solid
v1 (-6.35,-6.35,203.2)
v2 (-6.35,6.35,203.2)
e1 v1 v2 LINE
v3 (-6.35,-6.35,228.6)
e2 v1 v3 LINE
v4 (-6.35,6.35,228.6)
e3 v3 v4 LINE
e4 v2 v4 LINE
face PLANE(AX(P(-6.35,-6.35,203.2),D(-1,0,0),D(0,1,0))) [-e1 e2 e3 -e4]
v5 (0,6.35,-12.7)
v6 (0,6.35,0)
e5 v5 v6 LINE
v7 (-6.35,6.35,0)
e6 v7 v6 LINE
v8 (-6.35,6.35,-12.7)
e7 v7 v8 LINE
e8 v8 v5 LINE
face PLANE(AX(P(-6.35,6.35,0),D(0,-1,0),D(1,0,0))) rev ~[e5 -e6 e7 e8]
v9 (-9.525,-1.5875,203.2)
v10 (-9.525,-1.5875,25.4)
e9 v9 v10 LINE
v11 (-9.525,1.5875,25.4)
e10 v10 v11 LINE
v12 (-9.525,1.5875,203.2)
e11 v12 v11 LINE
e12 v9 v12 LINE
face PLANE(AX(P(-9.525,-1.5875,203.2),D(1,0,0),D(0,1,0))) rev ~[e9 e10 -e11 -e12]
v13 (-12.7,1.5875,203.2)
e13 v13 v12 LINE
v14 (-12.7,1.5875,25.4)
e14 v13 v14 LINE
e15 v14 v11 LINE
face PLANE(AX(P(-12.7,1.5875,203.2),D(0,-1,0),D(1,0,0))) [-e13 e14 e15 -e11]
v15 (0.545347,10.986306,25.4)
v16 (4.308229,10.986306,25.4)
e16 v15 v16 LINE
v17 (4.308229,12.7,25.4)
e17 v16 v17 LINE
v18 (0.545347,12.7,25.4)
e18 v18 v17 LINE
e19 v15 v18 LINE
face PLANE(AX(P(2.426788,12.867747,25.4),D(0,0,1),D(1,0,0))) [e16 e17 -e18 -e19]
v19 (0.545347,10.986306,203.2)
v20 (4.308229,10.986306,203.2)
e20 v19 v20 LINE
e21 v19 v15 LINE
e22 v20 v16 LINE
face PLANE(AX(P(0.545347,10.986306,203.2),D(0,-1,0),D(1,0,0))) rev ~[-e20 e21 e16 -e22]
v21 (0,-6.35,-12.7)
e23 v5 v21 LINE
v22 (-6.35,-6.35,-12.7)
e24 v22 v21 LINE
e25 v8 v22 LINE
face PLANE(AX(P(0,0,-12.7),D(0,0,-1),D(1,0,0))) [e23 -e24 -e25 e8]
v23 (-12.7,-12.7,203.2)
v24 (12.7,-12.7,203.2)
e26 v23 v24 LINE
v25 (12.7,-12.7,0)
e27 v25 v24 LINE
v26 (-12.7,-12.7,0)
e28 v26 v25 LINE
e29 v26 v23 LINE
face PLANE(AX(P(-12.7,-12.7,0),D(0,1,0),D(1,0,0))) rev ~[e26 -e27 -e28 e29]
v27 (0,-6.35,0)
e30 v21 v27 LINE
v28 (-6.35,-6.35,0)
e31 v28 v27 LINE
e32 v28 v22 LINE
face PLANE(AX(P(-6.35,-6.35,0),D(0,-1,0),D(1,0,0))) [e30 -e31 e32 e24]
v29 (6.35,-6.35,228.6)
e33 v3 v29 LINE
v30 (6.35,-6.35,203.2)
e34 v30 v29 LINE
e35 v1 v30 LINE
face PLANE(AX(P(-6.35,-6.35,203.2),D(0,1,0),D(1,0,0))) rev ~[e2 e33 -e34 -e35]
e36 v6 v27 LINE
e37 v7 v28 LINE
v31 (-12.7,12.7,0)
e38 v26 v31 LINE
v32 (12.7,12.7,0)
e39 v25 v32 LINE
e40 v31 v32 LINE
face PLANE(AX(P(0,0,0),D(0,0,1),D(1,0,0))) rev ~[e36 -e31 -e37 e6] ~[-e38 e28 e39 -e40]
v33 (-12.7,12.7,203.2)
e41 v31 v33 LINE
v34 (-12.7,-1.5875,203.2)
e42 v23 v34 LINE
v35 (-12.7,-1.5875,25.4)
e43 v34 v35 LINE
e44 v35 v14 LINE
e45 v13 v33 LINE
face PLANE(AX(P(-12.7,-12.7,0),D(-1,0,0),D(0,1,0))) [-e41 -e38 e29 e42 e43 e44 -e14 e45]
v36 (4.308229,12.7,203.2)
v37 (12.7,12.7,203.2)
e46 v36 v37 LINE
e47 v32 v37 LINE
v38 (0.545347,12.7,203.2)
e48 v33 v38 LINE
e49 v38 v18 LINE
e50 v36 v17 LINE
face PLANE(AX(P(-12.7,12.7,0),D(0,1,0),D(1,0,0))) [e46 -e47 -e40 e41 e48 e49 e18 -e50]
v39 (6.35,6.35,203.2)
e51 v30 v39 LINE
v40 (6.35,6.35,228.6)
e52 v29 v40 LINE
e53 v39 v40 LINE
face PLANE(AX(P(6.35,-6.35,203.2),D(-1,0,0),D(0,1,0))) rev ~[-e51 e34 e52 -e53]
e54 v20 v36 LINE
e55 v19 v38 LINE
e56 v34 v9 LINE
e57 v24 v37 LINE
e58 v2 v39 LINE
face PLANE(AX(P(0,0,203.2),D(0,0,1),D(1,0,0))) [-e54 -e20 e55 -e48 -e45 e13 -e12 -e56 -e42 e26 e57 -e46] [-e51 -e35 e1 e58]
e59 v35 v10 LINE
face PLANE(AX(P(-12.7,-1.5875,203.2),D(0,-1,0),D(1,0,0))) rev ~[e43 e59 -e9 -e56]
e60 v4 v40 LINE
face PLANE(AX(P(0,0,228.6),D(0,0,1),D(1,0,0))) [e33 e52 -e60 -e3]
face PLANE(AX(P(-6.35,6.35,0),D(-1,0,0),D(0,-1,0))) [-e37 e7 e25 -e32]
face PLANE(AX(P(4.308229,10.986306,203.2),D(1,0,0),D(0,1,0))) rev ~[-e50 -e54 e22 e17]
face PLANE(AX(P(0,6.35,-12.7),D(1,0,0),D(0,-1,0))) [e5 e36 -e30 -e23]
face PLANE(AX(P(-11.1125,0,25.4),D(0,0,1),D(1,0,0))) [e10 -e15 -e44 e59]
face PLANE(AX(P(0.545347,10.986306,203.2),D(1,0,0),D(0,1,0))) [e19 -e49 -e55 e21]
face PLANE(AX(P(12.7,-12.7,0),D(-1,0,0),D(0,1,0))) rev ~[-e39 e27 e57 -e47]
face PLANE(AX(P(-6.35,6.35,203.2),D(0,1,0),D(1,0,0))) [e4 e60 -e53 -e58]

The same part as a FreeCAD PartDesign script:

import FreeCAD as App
import Part
import Sketcher
from FreeCAD import Vector
Q = App.Units.Quantity


def add_polygon(sketch, points):
    """Adds a closed chain of lines whose ends are joined by coincident constraints."""
    first, n = sketch.GeometryCount, len(points)
    for a, b in zip(points, points[1:] + points[:1]):
        sketch.addGeometry(Part.LineSegment(App.Vector(*a, 0), App.Vector(*b, 0)), False)
    for i in range(n):
        sketch.addConstraint(Sketcher.Constraint("Coincident", first + i, 2, first + (i + 1) % n, 1))

doc = App.newDocument("Part")
params = doc.addObject("Spreadsheet::Sheet", "Params")
for row, (alias, value) in enumerate([
    ("sketch1_width", "1 in"),
    ("pad1_length", "8 in"),
    ("sketch2_width", "0.5 in"),
    ("pad2_length", "0.5 in"),
    ("sketch3_height", "0.5 in"),
    ("sketch3_width", "0.25 in"),
    ("pocket1_length", "0.5 in"),
    ("sketch4_width", "0.125 in"),
    ("pocket2_length", "7 in"),
    ("sketch5_width", "0.5 in"),
    ("pad3_length", "1 in"),
], start=1):
    params.set(f"A{row}", alias)
    params.set(f"B{row}", "=" + value)
    params.setAlias(f"B{row}", alias)

body = doc.addObject("PartDesign::Body", "Body")

# Sketch on XY plane
sketch1 = body.newObject("Sketcher::SketchObject", "Sketch")
sketch1.AttachmentSupport = (doc.getObject("XY_Plane"), [""])
sketch1.MapMode = "FlatFace"
add_polygon(sketch1, [(-12.7, 12.7), (-12.7, -12.7), (12.7, -12.7), (12.7, 12.7)])  # lines 0-3
sketch1.addConstraint(Sketcher.Constraint("Vertical", 0))
sketch1.addConstraint(Sketcher.Constraint("Horizontal", 1))
sketch1.addConstraint(Sketcher.Constraint("Vertical", 2))
sketch1.addConstraint(Sketcher.Constraint("Horizontal", 3))
sketch1.addConstraint(Sketcher.Constraint("Symmetric", 0, 2, 2, 2, -1, 1))
sketch1.addConstraint(Sketcher.Constraint("Equal", 3, 0))
sketch1.addConstraint(Sketcher.Constraint("DistanceX", 1, 1, 1, 2, Q("1 in")))
sketch1.setExpression("Constraints[10]", "Params.sketch1_width")
pad1 = body.newObject("PartDesign::Pad", "Pad")
pad1.Profile = sketch1
pad1.setExpression("Length", "Params.pad1_length")

# Sketch on XY plane
sketch2 = body.newObject("Sketcher::SketchObject", "Sketch001")
sketch2.AttachmentSupport = (doc.getObject("XY_Plane"), [""])
sketch2.MapMode = "FlatFace"
add_polygon(sketch2, [(-6.35, -6.35), (-6.35, 6.35), (6.35, 6.35), (6.35, -6.35)])  # lines 0-3
sketch2.addConstraint(Sketcher.Constraint("Vertical", 0))
sketch2.addConstraint(Sketcher.Constraint("Horizontal", 1))
sketch2.addConstraint(Sketcher.Constraint("Vertical", 2))
sketch2.addConstraint(Sketcher.Constraint("Horizontal", 3))
sketch2.addConstraint(Sketcher.Constraint("Symmetric", 0, 2, 2, 2, -1, 1))
sketch2.addConstraint(Sketcher.Constraint("Equal", 3, 0))
sketch2.addConstraint(Sketcher.Constraint("DistanceX", 1, 1, 1, 2, Q("0.5 in")))
sketch2.setExpression("Constraints[10]", "Params.sketch2_width")
pad2 = body.newObject("PartDesign::Pad", "Pad001")
pad2.Profile = sketch2
pad2.setExpression("Length", "Params.pad2_length")
pad2.Reversed = True

# Sketch on XY plane
sketch3 = body.newObject("Sketcher::SketchObject", "Sketch002")
sketch3.AttachmentSupport = (doc.getObject("XY_Plane"), [""])
sketch3.MapMode = "FlatFace"
sketch3.AttachmentOffset = App.Placement(Vector(0, 0, -0.5 * 25.4), App.Rotation())
add_polygon(sketch3, [(0, -6.35), (0, 6.35), (6.35, 6.35), (6.35, -6.35)])  # lines 0-3
sketch3.addConstraint(Sketcher.Constraint("Vertical", 0))
sketch3.addConstraint(Sketcher.Constraint("Horizontal", 1))
sketch3.addConstraint(Sketcher.Constraint("Vertical", 2))
sketch3.addConstraint(Sketcher.Constraint("Horizontal", 3))
sketch3.addConstraint(Sketcher.Constraint("Symmetric", 0, 2, 3, 2, -1, 1))
sketch3.addConstraint(Sketcher.Constraint("DistanceY", 0, 1, 0, 2, Q("0.5 in")))
sketch3.addConstraint(Sketcher.Constraint("DistanceX", 1, 1, 1, 2, Q("0.25 in")))
sketch3.setExpression("Constraints[9]", "Params.sketch3_height")
sketch3.setExpression("Constraints[10]", "Params.sketch3_width")
pocket1 = body.newObject("PartDesign::Pocket", "Pocket")
pocket1.Profile = sketch3
pocket1.setExpression("Length", "Params.pocket1_length")
pocket1.Reversed = True

# Sketch on XY plane
sketch4 = body.newObject("Sketcher::SketchObject", "Sketch003")
sketch4.AttachmentSupport = (doc.getObject("XY_Plane"), [""])
sketch4.MapMode = "FlatFace"
sketch4.AttachmentOffset = App.Placement(Vector(0, 0, 8 * 25.4), App.Rotation())
add_polygon(sketch4, [(0.545347, 14.749188), (0.545347, 10.986306), (4.308229, 10.986306), (4.308229, 14.749188)])  # lines 0-3
add_polygon(sketch4, [(-12.7, 1.5875), (-12.7, -1.5875), (-9.525, -1.5875), (-9.525, 1.5875)])  # lines 4-7
sketch4.addConstraint(Sketcher.Constraint("Vertical", 0))
sketch4.addConstraint(Sketcher.Constraint("Horizontal", 1))
sketch4.addConstraint(Sketcher.Constraint("Vertical", 2))
sketch4.addConstraint(Sketcher.Constraint("Horizontal", 3))
sketch4.addConstraint(Sketcher.Constraint("Vertical", 4))
sketch4.addConstraint(Sketcher.Constraint("Horizontal", 5))
sketch4.addConstraint(Sketcher.Constraint("Vertical", 6))
sketch4.addConstraint(Sketcher.Constraint("Horizontal", 7))
sketch4.addConstraint(Sketcher.Constraint("Equal", 3, 0))
sketch4.addConstraint(Sketcher.Constraint("Equal", 7, 4))
sketch4.addConstraint(Sketcher.Constraint("DistanceX", 4, 2, -1, 1, Q("0.5 in")))
sketch4.addConstraint(Sketcher.Constraint("DistanceX", 5, 1, 5, 2, Q("0.125 in")))
sketch4.addConstraint(Sketcher.Constraint("DistanceY", 4, 2, -1, 1, Q("0.0625 in")))
sketch4.addConstraint(Sketcher.Constraint("DistanceX", 1, 1, 1, 2, Q("3.762882 mm")))
sketch4.addConstraint(Sketcher.Constraint("DistanceX", -1, 1, 1, 2, Q("4.308229 mm")))
sketch4.addConstraint(Sketcher.Constraint("DistanceY", -1, 1, 0, 2, Q("10.986306 mm")))
sketch4.setExpression("Constraints[19]", "Params.sketch4_width")
pocket2 = body.newObject("PartDesign::Pocket", "Pocket001")
pocket2.Profile = sketch4
pocket2.setExpression("Length", "Params.pocket2_length")

# Sketch on XY plane
sketch5 = body.newObject("Sketcher::SketchObject", "Sketch004")
sketch5.AttachmentSupport = (doc.getObject("XY_Plane"), [""])
sketch5.MapMode = "FlatFace"
sketch5.AttachmentOffset = App.Placement(Vector(0, 0, 8 * 25.4), App.Rotation())
add_polygon(sketch5, [(-6.35, 6.35), (-6.35, -6.35), (6.35, -6.35), (6.35, 6.35)])  # lines 0-3
sketch5.addConstraint(Sketcher.Constraint("Vertical", 0))
sketch5.addConstraint(Sketcher.Constraint("Horizontal", 1))
sketch5.addConstraint(Sketcher.Constraint("Vertical", 2))
sketch5.addConstraint(Sketcher.Constraint("Horizontal", 3))
sketch5.addConstraint(Sketcher.Constraint("Symmetric", 0, 2, 2, 2, -1, 1))
sketch5.addConstraint(Sketcher.Constraint("Equal", 3, 0))
sketch5.addConstraint(Sketcher.Constraint("DistanceX", 1, 1, 1, 2, Q("0.5 in")))
sketch5.setExpression("Constraints[10]", "Params.sketch5_width")
pad3 = body.newObject("PartDesign::Pad", "Pad002")
pad3.Profile = sketch5
pad3.setExpression("Length", "Params.pad3_length")

doc.recompute()
